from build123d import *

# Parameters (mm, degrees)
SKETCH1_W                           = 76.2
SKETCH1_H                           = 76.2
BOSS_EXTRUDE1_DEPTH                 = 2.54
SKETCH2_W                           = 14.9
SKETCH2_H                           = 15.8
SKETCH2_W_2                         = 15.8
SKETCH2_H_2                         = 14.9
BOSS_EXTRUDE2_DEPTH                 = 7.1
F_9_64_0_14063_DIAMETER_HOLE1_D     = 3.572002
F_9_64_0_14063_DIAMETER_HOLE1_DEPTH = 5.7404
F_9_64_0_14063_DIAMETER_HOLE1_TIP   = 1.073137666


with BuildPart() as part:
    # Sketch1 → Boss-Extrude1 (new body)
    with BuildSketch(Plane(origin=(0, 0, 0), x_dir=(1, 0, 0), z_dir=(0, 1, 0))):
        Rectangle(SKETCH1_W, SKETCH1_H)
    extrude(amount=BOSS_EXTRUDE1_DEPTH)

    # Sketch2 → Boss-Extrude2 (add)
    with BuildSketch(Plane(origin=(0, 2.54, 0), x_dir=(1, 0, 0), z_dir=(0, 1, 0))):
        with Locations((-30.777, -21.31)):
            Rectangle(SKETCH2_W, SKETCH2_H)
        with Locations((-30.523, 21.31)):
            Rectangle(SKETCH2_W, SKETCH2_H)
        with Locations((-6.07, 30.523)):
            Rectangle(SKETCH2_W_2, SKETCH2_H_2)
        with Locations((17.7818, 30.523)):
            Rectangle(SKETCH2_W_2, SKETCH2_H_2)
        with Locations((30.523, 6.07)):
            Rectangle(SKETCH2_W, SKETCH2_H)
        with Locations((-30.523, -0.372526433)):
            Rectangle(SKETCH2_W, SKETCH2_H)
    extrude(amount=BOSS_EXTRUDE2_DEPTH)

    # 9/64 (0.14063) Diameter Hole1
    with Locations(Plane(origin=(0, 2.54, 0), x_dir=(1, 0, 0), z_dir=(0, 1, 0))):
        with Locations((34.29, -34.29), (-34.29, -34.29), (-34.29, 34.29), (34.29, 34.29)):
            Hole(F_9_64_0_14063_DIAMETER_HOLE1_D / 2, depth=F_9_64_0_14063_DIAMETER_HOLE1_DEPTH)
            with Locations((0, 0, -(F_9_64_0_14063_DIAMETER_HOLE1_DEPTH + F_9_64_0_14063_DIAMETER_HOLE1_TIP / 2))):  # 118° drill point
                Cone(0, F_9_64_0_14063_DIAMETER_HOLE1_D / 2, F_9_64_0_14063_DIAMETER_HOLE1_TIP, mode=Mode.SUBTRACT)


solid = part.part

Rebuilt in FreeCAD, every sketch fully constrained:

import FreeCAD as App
import Part
import Sketcher
Q = App.Units.Quantity


def add_polygon(sketch, points):
    """Adds a closed chain of lines whose ends are joined by coincident constraints."""
    first, n = sketch.GeometryCount, len(points)
    for a, b in zip(points, points[1:] + points[:1]):
        sketch.addGeometry(Part.LineSegment(App.Vector(*a, 0), App.Vector(*b, 0)), False)
    for i in range(n):
        sketch.addConstraint(Sketcher.Constraint("Coincident", first + i, 2, first + (i + 1) % n, 1))

doc = App.newDocument("Part")
body = doc.addObject("PartDesign::Body", "Body")

# Sketch on XZ plane
sketch1 = body.newObject("Sketcher::SketchObject", "Sketch")
sketch1.AttachmentSupport = (doc.getObject("XZ_Plane"), [""])
sketch1.MapMode = "FlatFace"
add_polygon(sketch1, [(-38, -38), (-38, 38), (38, 38), (38, -38)])  # lines 0-3
sketch1.addConstraint(Sketcher.Constraint("Vertical", 0))
sketch1.addConstraint(Sketcher.Constraint("Horizontal", 1))
sketch1.addConstraint(Sketcher.Constraint("Vertical", 2))
sketch1.addConstraint(Sketcher.Constraint("Horizontal", 3))
sketch1.addConstraint(Sketcher.Constraint("Symmetric", 0, 2, 2, 2, -1, 1))
sketch1.addConstraint(Sketcher.Constraint("Equal", 3, 0))
sketch1.addConstraint(Sketcher.Constraint("DistanceX", 1, 1, 1, 2, Q("76.2 mm")))
pad1 = body.newObject("PartDesign::Pad", "Pad")
pad1.Profile = sketch1
pad1.Length = 2.54
pad1.Reversed = True

# Sketch on XZ plane
sketch2 = body.newObject("Sketcher::SketchObject", "Sketch001")
sketch2.AttachmentSupport = (doc.getObject("XZ_Plane"), [""])
sketch2.MapMode = "FlatFace"
sketch2.AttachmentOffset = App.Placement(App.Vector(0, 0, -2.54), App.Rotation())
add_polygon(sketch2, [(-38, 13), (-38, 29), (-23, 29), (-23, 13)])  # lines 0-3
add_polygon(sketch2, [(-38, -29), (-38, -13), (-23, -13), (-23, -29)])  # lines 4-7
add_polygon(sketch2, [(-14, -38), (-14, -23), (2, -23), (2, -38)])  # lines 8-11
add_polygon(sketch2, [(10, -38), (10, -23), (26, -23), (26, -38)])  # lines 12-15
add_polygon(sketch2, [(23, -14), (23, 2), (38, 2), (38, -14)])  # lines 16-19
add_polygon(sketch2, [(-38, -8), (-38, 8), (-23, 8), (-23, -8)])  # lines 20-23
sketch2.addConstraint(Sketcher.Constraint("Vertical", 0))
sketch2.addConstraint(Sketcher.Constraint("Horizontal", 1))
sketch2.addConstraint(Sketcher.Constraint("Vertical", 2))
sketch2.addConstraint(Sketcher.Constraint("Horizontal", 3))
sketch2.addConstraint(Sketcher.Constraint("Vertical", 4))
sketch2.addConstraint(Sketcher.Constraint("Horizontal", 5))
sketch2.addConstraint(Sketcher.Constraint("Vertical", 6))
sketch2.addConstraint(Sketcher.Constraint("Horizontal", 7))
sketch2.addConstraint(Sketcher.Constraint("Vertical", 8))
sketch2.addConstraint(Sketcher.Constraint("Horizontal", 9))
sketch2.addConstraint(Sketcher.Constraint("Vertical", 10))
sketch2.addConstraint(Sketcher.Constraint("Horizontal", 11))
sketch2.addConstraint(Sketcher.Constraint("Vertical", 12))
sketch2.addConstraint(Sketcher.Constraint("Horizontal", 13))
sketch2.addConstraint(Sketcher.Constraint("Vertical", 14))
sketch2.addConstraint(Sketcher.Constraint("Horizontal", 15))
sketch2.addConstraint(Sketcher.Constraint("Vertical", 16))
sketch2.addConstraint(Sketcher.Constraint("Horizontal", 17))
sketch2.addConstraint(Sketcher.Constraint("Vertical", 18))
sketch2.addConstraint(Sketcher.Constraint("Horizontal", 19))
sketch2.addConstraint(Sketcher.Constraint("Vertical", 20))
sketch2.addConstraint(Sketcher.Constraint("Horizontal", 21))
sketch2.addConstraint(Sketcher.Constraint("Vertical", 22))
sketch2.addConstraint(Sketcher.Constraint("Horizontal", 23))
sketch2.addConstraint(Sketcher.Constraint("Horizontal", 9, 2, 12, 2))
sketch2.addConstraint(Sketcher.Constraint("Horizontal", 11, 2, 14, 2))
sketch2.addConstraint(Sketcher.Constraint("Vertical", 7, 2, 20, 2))
sketch2.addConstraint(Sketcher.Constraint("Vertical", 6, 2, 21, 2))
sketch2.addConstraint(Sketcher.Constraint("Equal", 3, 5))
sketch2.addConstraint(Sketcher.Constraint("Equal", 11, 13))
sketch2.addConstraint(Sketcher.Constraint("Equal", 7, 17))
sketch2.addConstraint(Sketcher.Constraint("Equal", 15, 0))
sketch2.addConstraint(Sketcher.Constraint("Equal", 2, 4))
sketch2.addConstraint(Sketcher.Constraint("Equal", 23, 8))
sketch2.addConstraint(Sketcher.Constraint("Equal", 6, 16))
sketch2.addConstraint(Sketcher.Constraint("Equal", 18, 20))
sketch2.addConstraint(Sketcher.Constraint("DistanceX", 1, 1, 1, 2, Q("14.9 mm")))
sketch2.addConstraint(Sketcher.Constraint("DistanceX", 9, 1, 9, 2, Q("15.8 mm")))
sketch2.addConstraint(Sketcher.Constraint("DistanceY", -1, 1, 0, 2, Q("29.21 mm")))
sketch2.addConstraint(Sketcher.Constraint("DistanceY", 4, 2, -1, 1, Q("13.41 mm")))
sketch2.addConstraint(Sketcher.Constraint("DistanceX", 8, 2, -1, 1, Q("13.97 mm")))
sketch2.addConstraint(Sketcher.Constraint("DistanceY", -1, 1, 16, 2, Q("1.83 mm")))
sketch2.addConstraint(Sketcher.Constraint("DistanceX", 0, 2, -1, 1, Q("38.227 mm")))
sketch2.addConstraint(Sketcher.Constraint("DistanceX", 4, 2, -1, 1, Q("37.973 mm")))
sketch2.addConstraint(Sketcher.Constraint("DistanceY", 8, 2, -1, 1, Q("23.073 mm")))
sketch2.addConstraint(Sketcher.Constraint("DistanceX", -1, 1, 16, 2, Q("23.073 mm")))
sketch2.addConstraint(Sketcher.Constraint("DistanceX", -1, 1, 12, 2, Q("9.8818 mm")))
sketch2.addConstraint(Sketcher.Constraint("DistanceY", -1, 1, 20, 2, Q("8.272526 mm")))
pad2 = body.newObject("PartDesign::Pad", "Pad001")
pad2.Profile = sketch2
pad2.Length = 7.1
pad2.Reversed = True

# Sketch on XZ plane
sketch3 = body.newObject("Sketcher::SketchObject", "Sketch002")
sketch3.AttachmentSupport = (doc.getObject("XZ_Plane"), [""])
sketch3.MapMode = "FlatFace"
sketch3.AttachmentOffset = App.Placement(App.Vector(0, 0, -2.54), App.Rotation())
sketch3.addGeometry(Part.Circle(App.Vector(34.3, 34.3, 0), App.Vector(0, 0, 1), 1.8), False)
sketch3.addGeometry(Part.Circle(App.Vector(-34.3, 34.3, 0), App.Vector(0, 0, 1), 1.8), False)
sketch3.addGeometry(Part.Circle(App.Vector(-34.3, -34.3, 0), App.Vector(0, 0, 1), 1.8), False)
sketch3.addGeometry(Part.Circle(App.Vector(34.3, -34.3, 0), App.Vector(0, 0, 1), 1.8), False)
sketch3.addConstraint(Sketcher.Constraint("Equal", 0, 1))
sketch3.addConstraint(Sketcher.Constraint("Equal", 1, 2))
sketch3.addConstraint(Sketcher.Constraint("Equal", 2, 3))
sketch3.addConstraint(Sketcher.Constraint("Symmetric", 0, 3, 2, 3, -1, 1))
sketch3.addConstraint(Sketcher.Constraint("Symmetric", 1, 3, 3, 3, -1, 1))
sketch3.addConstraint(Sketcher.Constraint("Symmetric", 0, 3, 1, 3, -2))
sketch3.addConstraint(Sketcher.Constraint("Diameter", 0, Q("3.572002 mm")))
sketch3.addConstraint(Sketcher.Constraint("DistanceX", -1, 1, 0, 3, Q("34.29 mm")))
sketch3.addConstraint(Sketcher.Constraint("DistanceY", -1, 1, 0, 3, Q("34.29 mm")))
doc.recompute()
hole = body.newObject("PartDesign::Hole", "Hole")
hole.Profile = sketch3
hole.ThreadType = "None"
hole.Diameter = 3.572002
hole.DepthType = "Dimension"
hole.Depth = 5.7404
hole.DrillPoint = "Angled"
hole.DrillPointAngle = 118
hole.Reversed = True

doc.recompute()
